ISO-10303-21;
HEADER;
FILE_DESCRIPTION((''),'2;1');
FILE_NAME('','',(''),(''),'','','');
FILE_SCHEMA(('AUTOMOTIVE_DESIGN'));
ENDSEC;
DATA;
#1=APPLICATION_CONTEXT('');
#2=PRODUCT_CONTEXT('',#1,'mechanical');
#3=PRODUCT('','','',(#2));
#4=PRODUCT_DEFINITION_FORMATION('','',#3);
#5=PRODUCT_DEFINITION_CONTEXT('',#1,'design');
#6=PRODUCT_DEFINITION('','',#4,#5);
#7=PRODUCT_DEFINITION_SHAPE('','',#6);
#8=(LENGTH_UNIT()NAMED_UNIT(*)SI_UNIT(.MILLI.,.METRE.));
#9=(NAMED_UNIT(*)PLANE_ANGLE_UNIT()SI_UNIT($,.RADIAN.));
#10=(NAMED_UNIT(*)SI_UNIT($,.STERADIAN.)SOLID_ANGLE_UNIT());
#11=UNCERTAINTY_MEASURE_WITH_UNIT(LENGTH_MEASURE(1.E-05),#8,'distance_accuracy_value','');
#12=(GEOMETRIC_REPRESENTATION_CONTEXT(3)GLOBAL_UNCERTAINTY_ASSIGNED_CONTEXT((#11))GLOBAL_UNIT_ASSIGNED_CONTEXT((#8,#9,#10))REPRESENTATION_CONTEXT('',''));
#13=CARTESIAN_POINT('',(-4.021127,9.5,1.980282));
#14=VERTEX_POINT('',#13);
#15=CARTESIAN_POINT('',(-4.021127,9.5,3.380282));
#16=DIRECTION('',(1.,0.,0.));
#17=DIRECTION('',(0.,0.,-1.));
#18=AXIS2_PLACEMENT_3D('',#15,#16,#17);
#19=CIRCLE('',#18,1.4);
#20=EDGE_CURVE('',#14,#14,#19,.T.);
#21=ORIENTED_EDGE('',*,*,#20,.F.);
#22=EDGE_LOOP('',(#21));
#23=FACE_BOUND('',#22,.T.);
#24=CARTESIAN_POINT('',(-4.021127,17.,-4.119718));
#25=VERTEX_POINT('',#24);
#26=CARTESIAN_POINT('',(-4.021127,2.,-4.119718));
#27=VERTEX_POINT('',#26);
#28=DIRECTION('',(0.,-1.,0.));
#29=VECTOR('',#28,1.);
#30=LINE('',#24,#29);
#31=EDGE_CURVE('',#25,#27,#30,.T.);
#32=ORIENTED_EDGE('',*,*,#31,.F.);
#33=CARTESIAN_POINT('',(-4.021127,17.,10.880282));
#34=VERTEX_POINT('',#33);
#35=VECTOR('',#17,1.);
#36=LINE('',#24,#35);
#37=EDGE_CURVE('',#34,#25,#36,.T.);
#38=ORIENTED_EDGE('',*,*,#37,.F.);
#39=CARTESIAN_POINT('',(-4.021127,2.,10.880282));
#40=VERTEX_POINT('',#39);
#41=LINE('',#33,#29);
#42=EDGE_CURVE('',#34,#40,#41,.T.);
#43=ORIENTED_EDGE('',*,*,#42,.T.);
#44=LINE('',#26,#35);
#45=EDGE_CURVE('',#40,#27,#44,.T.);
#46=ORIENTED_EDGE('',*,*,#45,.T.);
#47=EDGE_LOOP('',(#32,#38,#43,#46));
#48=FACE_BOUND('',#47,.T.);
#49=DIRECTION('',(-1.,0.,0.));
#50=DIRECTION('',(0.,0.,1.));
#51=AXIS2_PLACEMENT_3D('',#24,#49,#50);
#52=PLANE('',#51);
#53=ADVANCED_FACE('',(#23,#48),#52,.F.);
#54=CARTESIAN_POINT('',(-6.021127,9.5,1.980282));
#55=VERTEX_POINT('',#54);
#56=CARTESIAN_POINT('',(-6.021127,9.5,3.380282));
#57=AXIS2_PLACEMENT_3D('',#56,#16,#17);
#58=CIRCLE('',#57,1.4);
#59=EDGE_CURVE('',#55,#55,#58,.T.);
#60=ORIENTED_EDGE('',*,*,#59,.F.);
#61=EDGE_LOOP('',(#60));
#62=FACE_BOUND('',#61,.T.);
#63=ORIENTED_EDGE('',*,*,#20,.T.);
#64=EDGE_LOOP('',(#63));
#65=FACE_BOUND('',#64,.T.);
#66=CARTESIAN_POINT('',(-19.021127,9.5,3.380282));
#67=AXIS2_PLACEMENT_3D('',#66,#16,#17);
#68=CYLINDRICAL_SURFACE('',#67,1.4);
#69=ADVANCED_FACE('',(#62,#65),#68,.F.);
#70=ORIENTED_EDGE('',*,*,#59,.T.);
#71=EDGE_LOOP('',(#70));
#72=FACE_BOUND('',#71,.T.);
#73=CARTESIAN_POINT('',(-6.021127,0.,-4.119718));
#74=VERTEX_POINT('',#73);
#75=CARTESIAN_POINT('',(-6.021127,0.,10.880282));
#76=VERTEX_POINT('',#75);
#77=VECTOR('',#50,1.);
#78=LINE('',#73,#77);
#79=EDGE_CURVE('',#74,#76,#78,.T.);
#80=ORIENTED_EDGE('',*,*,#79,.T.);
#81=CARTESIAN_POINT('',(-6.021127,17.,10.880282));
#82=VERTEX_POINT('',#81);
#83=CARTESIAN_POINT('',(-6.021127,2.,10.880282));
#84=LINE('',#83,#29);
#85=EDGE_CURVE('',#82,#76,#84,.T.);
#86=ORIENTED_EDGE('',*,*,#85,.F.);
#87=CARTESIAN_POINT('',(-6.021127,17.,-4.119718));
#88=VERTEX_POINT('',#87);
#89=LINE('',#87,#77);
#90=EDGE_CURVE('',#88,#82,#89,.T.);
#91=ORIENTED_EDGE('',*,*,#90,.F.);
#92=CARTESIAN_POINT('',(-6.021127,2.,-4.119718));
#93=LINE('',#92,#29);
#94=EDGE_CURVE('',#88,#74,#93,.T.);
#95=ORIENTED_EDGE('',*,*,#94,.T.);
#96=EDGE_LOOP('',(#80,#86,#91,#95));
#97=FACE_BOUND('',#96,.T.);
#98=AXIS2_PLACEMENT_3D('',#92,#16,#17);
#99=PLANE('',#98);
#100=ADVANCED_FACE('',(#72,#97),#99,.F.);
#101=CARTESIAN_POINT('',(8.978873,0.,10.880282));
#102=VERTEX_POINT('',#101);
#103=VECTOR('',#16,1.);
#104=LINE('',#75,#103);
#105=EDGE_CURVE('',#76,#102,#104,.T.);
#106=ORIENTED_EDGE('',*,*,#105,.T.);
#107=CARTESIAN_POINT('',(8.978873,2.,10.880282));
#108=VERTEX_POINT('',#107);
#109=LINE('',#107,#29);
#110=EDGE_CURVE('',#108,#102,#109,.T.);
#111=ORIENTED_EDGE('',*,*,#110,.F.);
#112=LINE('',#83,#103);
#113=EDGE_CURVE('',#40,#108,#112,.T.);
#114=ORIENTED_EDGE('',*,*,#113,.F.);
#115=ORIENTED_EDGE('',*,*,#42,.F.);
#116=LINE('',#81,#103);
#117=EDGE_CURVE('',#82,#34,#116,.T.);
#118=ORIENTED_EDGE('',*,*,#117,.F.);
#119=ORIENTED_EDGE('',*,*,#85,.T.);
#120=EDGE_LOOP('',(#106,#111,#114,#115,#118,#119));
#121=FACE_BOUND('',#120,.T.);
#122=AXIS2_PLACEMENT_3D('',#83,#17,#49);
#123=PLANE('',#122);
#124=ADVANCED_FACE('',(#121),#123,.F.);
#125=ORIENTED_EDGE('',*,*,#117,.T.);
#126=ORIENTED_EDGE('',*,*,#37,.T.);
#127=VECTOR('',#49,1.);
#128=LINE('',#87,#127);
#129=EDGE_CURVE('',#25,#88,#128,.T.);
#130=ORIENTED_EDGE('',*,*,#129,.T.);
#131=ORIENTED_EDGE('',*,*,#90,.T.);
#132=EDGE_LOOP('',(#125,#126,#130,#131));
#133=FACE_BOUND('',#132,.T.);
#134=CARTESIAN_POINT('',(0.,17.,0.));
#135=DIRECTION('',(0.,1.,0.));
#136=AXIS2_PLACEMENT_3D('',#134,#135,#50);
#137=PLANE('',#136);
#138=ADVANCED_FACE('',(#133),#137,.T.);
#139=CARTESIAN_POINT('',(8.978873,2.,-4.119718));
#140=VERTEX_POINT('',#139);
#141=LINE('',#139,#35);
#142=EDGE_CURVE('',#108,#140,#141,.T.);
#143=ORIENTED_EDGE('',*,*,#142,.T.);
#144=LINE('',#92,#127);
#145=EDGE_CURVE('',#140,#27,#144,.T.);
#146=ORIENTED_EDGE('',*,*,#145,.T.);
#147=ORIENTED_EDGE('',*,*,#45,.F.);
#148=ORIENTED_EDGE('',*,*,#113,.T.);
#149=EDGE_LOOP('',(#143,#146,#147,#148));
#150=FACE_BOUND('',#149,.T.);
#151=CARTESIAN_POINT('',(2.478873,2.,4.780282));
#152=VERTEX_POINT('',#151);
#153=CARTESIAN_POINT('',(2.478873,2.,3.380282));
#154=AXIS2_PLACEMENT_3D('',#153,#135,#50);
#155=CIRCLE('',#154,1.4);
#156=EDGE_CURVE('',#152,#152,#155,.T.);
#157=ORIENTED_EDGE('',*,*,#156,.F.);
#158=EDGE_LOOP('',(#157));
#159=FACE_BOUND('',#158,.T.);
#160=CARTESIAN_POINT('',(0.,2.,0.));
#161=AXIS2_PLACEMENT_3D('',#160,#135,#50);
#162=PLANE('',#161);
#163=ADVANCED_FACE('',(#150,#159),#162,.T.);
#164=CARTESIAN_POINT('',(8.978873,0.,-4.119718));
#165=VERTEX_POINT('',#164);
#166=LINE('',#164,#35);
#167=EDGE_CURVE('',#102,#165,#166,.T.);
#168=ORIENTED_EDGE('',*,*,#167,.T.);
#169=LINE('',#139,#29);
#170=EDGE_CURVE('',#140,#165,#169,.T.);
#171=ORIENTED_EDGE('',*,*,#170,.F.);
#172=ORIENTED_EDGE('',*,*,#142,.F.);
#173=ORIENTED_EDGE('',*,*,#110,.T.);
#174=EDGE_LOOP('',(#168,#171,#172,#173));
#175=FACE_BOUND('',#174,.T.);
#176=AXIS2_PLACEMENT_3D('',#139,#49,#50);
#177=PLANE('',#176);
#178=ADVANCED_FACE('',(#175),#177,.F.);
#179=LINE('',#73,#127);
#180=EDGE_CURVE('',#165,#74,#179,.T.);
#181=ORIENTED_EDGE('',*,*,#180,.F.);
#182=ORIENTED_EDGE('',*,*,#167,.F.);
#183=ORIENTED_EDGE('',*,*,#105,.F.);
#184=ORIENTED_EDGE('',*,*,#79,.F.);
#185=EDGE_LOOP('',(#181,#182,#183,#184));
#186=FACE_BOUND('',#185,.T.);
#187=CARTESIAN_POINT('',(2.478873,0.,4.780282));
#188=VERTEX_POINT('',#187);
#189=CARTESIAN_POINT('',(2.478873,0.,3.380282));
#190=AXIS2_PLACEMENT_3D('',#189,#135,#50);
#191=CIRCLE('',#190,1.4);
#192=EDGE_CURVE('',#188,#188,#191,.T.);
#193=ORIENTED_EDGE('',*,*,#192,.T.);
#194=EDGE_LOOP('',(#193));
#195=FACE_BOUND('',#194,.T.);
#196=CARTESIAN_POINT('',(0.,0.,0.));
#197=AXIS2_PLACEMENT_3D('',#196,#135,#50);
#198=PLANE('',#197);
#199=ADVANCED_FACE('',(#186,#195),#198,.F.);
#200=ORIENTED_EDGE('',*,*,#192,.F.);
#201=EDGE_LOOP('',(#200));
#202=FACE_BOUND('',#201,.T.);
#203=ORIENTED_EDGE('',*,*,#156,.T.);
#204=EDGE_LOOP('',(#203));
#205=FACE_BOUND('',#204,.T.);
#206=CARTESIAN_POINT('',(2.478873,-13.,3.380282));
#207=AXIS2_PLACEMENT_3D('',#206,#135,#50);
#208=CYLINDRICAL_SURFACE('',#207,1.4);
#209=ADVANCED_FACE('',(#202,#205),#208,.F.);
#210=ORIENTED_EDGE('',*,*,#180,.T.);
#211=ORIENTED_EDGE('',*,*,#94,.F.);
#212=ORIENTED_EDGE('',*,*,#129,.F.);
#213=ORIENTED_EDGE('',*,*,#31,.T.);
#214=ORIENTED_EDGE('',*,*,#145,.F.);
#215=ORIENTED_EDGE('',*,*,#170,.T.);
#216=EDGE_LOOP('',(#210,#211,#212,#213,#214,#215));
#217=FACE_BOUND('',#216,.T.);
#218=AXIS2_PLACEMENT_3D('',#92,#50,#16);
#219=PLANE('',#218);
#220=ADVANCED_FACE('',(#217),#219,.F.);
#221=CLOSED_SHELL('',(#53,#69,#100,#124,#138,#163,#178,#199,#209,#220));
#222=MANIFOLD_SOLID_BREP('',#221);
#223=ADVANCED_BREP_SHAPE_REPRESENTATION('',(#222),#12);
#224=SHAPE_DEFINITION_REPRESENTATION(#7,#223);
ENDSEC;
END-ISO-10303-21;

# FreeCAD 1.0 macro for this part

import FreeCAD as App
import Part
import Sketcher

V = App.Vector
Q = App.Units.Quantity

doc = App.newDocument("Part")
params = doc.addObject("Spreadsheet::Sheet", "Params")
for row, (alias, value) in enumerate([
    ("sketch1_width", "15 mm"),
    ("pad1_length", "2 mm"),
    ("sketch2_width", "2 mm"),
    ("sketch2_height", "15 mm"),
    ("pad2_length", "15 mm"),
    ("sketch3_diameter", "2.8 mm"),
    ("pocket1_length", "15 mm"),
    ("sketch4_diameter", "2.8 mm"),
    ("pocket2_length", "15 mm"),
], start=1):
    params.set(f"A{row}", alias)
    params.set(f"B{row}", "=" + value)
    params.setAlias(f"B{row}", alias)

body = doc.addObject("PartDesign::Body", "Body")

# Sketch on XZ plane
sketch1 = body.newObject("Sketcher::SketchObject", "Sketch")
sketch1.AttachmentSupport = (doc.getObject("XZ_Plane"), [""])
sketch1.MapMode = "FlatFace"
sketch1.addGeometry([
    Part.LineSegment(V(-6, -4, 0), V(-6, 11, 0)),
    Part.LineSegment(V(-6, 11, 0), V(9, 11, 0)),
    Part.LineSegment(V(9, 11, 0), V(9, -4, 0)),
    Part.LineSegment(V(9, -4, 0), V(-6, -4, 0)),
], False)
sketch1.addConstraint([
    Sketcher.Constraint("Coincident", 0, 2, 1, 1),
    Sketcher.Constraint("Coincident", 1, 2, 2, 1),
    Sketcher.Constraint("Coincident", 2, 2, 3, 1),
    Sketcher.Constraint("Coincident", 3, 2, 0, 1),
    Sketcher.Constraint("Vertical", 0),
    Sketcher.Constraint("Horizontal", 1),
    Sketcher.Constraint("Vertical", 2),
    Sketcher.Constraint("Horizontal", 3),
    Sketcher.Constraint("Equal", 3, 0),
    Sketcher.Constraint("DistanceX", 1, 1, 1, 2, Q("15 mm")),
    Sketcher.Constraint("DistanceY", -1, 1, 0, 2, Q("10.880282 mm")),
    Sketcher.Constraint("DistanceX", 0, 2, -1, 1, Q("6.021127 mm")),
])
sketch1.setExpression("Constraints[9]", "Params.sketch1_width")
pad1 = body.newObject("PartDesign::Pad", "Pad")
pad1.Profile = sketch1
pad1.setExpression("Length", "Params.pad1_length")
pad1.Reversed = True

# Sketch on XZ plane
sketch2 = body.newObject("Sketcher::SketchObject", "Sketch001")
sketch2.AttachmentSupport = (doc.getObject("XZ_Plane"), [""])
sketch2.MapMode = "FlatFace"
sketch2.AttachmentOffset = App.Placement(V(0, 0, -2), App.Rotation())
sketch2.addGeometry([
    Part.LineSegment(V(-6, -4.1, 0), V(-6, 10.9, 0)),
    Part.LineSegment(V(-6, 10.9, 0), V(-4, 10.9, 0)),
    Part.LineSegment(V(-4, 10.9, 0), V(-4, -4.1, 0)),
    Part.LineSegment(V(-4, -4.1, 0), V(-6, -4.1, 0)),
], False)
sketch2.addConstraint([
    Sketcher.Constraint("Coincident", 0, 2, 1, 1),
    Sketcher.Constraint("Coincident", 1, 2, 2, 1),
    Sketcher.Constraint("Coincident", 2, 2, 3, 1),
    Sketcher.Constraint("Coincident", 3, 2, 0, 1),
    Sketcher.Constraint("Vertical", 0),
    Sketcher.Constraint("Horizontal", 1),
    Sketcher.Constraint("Vertical", 2),
    Sketcher.Constraint("Horizontal", 3),
    Sketcher.Constraint("DistanceX", 1, 1, 1, 2, Q("2 mm")),
    Sketcher.Constraint("DistanceY", 0, 1, 0, 2, Q("15 mm")),
    Sketcher.Constraint("DistanceY", -1, 1, 0, 2, Q("10.880282 mm")),
    Sketcher.Constraint("DistanceX", 0, 2, -1, 1, Q("6.021127 mm")),
])
sketch2.setExpression("Constraints[8]", "Params.sketch2_width")
sketch2.setExpression("Constraints[9]", "Params.sketch2_height")
pad2 = body.newObject("PartDesign::Pad", "Pad001")
pad2.Profile = sketch2
pad2.setExpression("Length", "Params.pad2_length")
pad2.Reversed = True

# Sketch on XZ plane
sketch3 = body.newObject("Sketcher::SketchObject", "Sketch002")
sketch3.AttachmentSupport = (doc.getObject("XZ_Plane"), [""])
sketch3.MapMode = "FlatFace"
sketch3.AttachmentOffset = App.Placement(V(0, 0, -2), App.Rotation())
sketch3.addGeometry(Part.Circle(V(2.5, 3.4, 0), V(0, 0, 1), 1.4), False)
sketch3.addConstraint([
    Sketcher.Constraint("Diameter", 0, Q("2.8 mm")),
    Sketcher.Constraint("DistanceY", -1, 1, 0, 3, Q("3.380282 mm")),
    Sketcher.Constraint("DistanceX", -1, 1, 0, 3, Q("2.478873 mm")),
])
sketch3.setExpression("Constraints[0]", "Params.sketch3_diameter")
pocket1 = body.newObject("PartDesign::Pocket", "Pocket")
pocket1.Profile = sketch3
pocket1.setExpression("Length", "Params.pocket1_length")
pocket1.Reversed = True

# Sketch on YZ plane
sketch4 = body.newObject("Sketcher::SketchObject", "Sketch003")
sketch4.AttachmentSupport = (doc.getObject("YZ_Plane"), [""])
sketch4.MapMode = "FlatFace"
sketch4.AttachmentOffset = App.Placement(V(0, 0, -4.021127), App.Rotation())
sketch4.addGeometry(Part.Circle(V(9.5, 3.4, 0), V(0, 0, 1), 1.4), False)
sketch4.addConstraint([
    Sketcher.Constraint("Diameter", 0, Q("2.8 mm")),
    Sketcher.Constraint("DistanceX", -1, 1, 0, 3, Q("9.5 mm")),
    Sketcher.Constraint("DistanceY", -1, 1, 0, 3, Q("3.380282 mm")),
])
sketch4.setExpression("Constraints[0]", "Params.sketch4_diameter")
pocket2 = body.newObject("PartDesign::Pocket", "Pocket001")
pocket2.Profile = sketch4
pocket2.setExpression("Length", "Params.pocket2_length")

doc.recompute()
